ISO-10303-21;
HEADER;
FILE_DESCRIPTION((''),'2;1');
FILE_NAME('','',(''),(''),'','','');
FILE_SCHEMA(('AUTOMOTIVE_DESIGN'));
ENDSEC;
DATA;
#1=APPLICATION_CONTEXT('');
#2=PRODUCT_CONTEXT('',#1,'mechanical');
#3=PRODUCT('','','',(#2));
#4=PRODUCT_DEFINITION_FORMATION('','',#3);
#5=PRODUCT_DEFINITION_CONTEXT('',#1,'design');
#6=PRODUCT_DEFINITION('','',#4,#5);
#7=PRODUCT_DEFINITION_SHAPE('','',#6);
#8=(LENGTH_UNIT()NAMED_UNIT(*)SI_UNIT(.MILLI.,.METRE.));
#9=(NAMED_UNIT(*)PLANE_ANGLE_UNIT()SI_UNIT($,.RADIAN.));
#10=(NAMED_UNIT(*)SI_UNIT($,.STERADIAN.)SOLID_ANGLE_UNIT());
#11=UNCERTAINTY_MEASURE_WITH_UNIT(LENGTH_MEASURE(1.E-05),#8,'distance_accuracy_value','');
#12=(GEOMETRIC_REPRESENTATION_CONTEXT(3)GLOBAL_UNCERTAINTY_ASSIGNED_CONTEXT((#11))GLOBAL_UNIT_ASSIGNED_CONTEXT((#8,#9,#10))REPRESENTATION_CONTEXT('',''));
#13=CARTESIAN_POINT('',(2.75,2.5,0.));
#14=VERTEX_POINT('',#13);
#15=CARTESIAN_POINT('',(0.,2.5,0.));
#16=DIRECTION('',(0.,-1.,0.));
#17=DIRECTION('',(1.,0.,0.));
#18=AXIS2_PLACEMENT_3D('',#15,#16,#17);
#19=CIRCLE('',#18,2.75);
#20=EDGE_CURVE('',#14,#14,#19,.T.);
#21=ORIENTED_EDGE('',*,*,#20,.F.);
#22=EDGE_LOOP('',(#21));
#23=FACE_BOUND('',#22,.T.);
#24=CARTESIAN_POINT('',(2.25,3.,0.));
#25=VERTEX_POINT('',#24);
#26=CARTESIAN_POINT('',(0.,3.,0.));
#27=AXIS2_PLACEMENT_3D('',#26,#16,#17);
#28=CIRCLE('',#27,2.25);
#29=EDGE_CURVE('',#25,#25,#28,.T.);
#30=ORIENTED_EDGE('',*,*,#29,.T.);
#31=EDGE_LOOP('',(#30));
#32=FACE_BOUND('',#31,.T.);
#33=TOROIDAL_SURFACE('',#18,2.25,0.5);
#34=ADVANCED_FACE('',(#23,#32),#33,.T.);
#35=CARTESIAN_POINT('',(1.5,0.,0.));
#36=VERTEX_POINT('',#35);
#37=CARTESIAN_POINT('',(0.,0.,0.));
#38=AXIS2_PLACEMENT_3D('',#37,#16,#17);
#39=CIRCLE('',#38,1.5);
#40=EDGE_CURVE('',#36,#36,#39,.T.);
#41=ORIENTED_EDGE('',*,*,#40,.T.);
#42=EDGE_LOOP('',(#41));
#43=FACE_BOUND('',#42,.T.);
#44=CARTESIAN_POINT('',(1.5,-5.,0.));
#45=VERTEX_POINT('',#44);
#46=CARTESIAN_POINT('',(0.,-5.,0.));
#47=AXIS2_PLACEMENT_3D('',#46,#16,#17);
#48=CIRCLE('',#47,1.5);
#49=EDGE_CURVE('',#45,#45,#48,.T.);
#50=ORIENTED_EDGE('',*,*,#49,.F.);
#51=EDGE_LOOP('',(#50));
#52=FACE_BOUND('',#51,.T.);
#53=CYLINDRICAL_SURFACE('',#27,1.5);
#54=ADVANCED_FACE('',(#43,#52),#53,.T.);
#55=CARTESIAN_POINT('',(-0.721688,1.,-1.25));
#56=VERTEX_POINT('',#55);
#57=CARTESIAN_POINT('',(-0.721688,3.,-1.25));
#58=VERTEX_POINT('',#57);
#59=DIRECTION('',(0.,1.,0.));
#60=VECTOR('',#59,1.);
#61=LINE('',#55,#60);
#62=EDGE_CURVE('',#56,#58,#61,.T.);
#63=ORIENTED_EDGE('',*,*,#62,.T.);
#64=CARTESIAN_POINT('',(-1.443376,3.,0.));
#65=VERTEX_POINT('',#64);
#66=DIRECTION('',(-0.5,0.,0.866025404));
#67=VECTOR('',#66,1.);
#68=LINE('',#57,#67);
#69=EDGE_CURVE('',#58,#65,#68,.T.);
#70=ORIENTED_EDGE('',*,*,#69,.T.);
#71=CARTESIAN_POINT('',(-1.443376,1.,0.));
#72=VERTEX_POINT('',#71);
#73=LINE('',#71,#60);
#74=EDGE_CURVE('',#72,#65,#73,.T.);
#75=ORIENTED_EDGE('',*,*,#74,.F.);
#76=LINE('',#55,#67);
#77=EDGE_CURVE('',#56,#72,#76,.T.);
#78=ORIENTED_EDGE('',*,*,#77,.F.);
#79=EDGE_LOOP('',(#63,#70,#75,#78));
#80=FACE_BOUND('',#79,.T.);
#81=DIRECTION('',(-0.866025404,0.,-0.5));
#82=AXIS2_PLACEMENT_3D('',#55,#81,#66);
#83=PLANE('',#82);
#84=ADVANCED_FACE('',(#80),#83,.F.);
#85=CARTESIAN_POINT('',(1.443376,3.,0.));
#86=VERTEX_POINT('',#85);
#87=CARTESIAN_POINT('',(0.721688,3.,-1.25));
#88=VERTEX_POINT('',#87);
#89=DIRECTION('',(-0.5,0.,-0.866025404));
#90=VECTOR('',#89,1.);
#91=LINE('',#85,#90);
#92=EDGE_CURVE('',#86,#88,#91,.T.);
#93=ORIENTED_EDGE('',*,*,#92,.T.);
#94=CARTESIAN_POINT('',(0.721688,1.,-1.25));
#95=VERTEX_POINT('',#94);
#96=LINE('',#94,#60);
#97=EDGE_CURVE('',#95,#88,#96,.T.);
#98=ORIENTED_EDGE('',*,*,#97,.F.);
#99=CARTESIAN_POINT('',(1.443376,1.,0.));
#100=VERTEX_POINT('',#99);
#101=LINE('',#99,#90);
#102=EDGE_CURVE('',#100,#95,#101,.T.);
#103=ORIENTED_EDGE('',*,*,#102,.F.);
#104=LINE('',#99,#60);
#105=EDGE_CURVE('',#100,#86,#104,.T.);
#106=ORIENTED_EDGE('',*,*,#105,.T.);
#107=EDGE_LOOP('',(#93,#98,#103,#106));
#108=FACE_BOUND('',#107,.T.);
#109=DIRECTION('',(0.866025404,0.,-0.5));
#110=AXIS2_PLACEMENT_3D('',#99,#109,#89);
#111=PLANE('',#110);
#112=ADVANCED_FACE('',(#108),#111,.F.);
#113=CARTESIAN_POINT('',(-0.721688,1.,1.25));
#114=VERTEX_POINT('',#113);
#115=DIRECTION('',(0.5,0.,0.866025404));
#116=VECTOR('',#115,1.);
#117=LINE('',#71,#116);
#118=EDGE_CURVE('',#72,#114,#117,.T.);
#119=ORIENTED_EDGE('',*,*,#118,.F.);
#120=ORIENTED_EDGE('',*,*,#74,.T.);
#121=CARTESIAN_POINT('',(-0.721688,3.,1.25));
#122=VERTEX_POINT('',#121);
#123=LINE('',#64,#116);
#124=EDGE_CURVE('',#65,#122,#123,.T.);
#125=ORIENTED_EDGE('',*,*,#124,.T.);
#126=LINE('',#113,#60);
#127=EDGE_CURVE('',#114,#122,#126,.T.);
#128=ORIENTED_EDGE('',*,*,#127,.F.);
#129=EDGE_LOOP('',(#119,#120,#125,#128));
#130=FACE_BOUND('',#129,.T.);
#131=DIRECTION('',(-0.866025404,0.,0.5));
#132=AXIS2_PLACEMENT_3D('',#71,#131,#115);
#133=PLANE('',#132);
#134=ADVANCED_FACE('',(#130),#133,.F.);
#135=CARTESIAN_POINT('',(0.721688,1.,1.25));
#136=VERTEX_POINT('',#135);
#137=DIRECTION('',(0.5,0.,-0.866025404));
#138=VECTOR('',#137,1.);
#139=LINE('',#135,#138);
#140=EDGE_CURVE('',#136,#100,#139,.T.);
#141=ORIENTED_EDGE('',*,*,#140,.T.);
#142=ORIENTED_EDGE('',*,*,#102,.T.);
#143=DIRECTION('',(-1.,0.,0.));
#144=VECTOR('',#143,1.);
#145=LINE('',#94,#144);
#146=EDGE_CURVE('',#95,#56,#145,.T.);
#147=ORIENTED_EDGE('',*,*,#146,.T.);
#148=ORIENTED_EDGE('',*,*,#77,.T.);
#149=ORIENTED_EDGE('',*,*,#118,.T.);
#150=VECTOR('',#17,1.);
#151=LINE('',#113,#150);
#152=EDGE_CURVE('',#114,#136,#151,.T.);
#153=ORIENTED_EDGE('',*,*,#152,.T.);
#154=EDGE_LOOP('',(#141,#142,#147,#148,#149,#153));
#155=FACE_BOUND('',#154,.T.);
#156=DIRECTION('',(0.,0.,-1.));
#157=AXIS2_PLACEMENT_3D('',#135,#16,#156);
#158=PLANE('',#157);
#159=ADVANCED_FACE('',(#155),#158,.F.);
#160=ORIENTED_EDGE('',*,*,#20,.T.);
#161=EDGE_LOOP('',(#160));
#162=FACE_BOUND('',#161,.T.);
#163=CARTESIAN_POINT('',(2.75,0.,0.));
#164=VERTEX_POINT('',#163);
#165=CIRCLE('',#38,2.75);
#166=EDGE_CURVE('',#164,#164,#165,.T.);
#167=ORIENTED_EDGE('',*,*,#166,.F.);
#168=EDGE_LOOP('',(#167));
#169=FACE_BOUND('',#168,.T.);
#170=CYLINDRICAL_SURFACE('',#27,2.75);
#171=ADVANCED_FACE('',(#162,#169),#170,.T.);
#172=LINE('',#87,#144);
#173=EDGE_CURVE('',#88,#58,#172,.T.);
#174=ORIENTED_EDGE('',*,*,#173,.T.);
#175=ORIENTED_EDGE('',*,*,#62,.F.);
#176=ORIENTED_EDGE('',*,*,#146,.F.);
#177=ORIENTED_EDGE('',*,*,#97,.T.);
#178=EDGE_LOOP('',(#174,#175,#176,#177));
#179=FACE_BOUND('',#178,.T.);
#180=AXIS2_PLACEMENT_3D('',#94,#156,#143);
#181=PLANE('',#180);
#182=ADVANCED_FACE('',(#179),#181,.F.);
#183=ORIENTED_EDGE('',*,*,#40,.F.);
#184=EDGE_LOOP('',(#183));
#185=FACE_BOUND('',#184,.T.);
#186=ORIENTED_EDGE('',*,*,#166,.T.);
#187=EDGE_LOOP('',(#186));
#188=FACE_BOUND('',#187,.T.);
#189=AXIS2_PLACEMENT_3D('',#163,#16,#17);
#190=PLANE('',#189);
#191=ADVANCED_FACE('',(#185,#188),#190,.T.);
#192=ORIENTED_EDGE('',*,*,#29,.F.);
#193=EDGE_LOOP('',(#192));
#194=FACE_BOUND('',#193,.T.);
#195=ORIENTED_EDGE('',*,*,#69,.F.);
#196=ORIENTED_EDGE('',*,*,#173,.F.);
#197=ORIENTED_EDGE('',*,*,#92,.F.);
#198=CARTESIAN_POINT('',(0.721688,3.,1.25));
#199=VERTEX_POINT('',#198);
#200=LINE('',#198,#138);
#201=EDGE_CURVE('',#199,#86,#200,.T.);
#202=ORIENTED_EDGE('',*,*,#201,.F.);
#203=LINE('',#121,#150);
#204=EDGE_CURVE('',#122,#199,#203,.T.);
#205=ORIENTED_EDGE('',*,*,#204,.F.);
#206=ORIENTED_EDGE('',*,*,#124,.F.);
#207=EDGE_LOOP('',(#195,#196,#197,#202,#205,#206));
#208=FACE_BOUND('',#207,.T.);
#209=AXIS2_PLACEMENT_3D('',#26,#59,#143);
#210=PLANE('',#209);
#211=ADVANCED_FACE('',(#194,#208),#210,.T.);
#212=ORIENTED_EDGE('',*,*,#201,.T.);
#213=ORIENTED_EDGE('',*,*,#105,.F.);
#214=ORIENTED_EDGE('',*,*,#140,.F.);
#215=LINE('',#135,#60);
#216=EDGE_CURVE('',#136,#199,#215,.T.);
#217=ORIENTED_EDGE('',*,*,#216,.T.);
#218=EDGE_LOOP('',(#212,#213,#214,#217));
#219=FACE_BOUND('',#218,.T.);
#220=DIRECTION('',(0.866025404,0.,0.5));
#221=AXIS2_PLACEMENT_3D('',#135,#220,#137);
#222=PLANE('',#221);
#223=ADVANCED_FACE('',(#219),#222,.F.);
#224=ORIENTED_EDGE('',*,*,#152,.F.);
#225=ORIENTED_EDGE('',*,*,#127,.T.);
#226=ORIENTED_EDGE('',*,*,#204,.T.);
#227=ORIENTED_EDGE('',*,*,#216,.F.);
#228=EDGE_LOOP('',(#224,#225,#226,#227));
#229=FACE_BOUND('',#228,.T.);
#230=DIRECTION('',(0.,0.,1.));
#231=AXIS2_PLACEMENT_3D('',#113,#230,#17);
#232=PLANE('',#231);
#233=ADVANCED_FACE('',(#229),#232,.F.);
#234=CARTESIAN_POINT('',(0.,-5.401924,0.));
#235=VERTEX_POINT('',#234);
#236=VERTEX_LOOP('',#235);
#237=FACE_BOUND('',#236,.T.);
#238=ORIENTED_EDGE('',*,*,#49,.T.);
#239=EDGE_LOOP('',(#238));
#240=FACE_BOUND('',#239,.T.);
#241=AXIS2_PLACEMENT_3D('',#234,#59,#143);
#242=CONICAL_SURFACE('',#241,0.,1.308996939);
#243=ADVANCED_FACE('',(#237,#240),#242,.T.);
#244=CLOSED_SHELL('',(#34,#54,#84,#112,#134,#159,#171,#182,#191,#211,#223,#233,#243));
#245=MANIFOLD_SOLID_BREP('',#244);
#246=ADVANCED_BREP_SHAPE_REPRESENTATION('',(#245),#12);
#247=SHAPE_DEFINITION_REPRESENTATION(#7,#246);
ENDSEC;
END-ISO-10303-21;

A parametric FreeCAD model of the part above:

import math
import FreeCAD as App
import Part
import Sketcher
from FreeCAD import Vector
Q = App.Units.Quantity


def add_polygon(sketch, points):
    """Adds a closed chain of lines whose ends are joined by coincident constraints."""
    first, n = sketch.GeometryCount, len(points)
    for a, b in zip(points, points[1:] + points[:1]):
        sketch.addGeometry(Part.LineSegment(App.Vector(*a, 0), App.Vector(*b, 0)), False)
    for i in range(n):
        sketch.addConstraint(Sketcher.Constraint("Coincident", first + i, 2, first + (i + 1) % n, 1))

doc = App.newDocument("Part")
body = doc.addObject("PartDesign::Body", "Body")

# Sketch on XY plane
sketch1 = body.newObject("Sketcher::SketchObject", "Sketch")
sketch1.AttachmentSupport = (doc.getObject("XY_Plane"), [""])
sketch1.MapMode = "FlatFace"
sketch1.addGeometry(Part.LineSegment(Vector(0, 3, 0), Vector(0, -5.4, 0)), False)
sketch1.addGeometry(Part.LineSegment(Vector(0, -5.4, 0), Vector(1.5, -5, 0)), False)
sketch1.addGeometry(Part.LineSegment(Vector(1.5, -5, 0), Vector(1.5, 0, 0)), False)
sketch1.addGeometry(Part.LineSegment(Vector(1.5, 0, 0), Vector(2.75, 0, 0)), False)
sketch1.addGeometry(Part.LineSegment(Vector(2.75, 0, 0), Vector(2.75, 2.5, 0)), False)
sketch1.addGeometry(Part.ArcOfCircle(Part.Circle(Vector(2.25, 2.5, 0), Vector(0, 0, 1), 0.5), math.radians(0), math.radians(90)), False)
sketch1.addGeometry(Part.LineSegment(Vector(2.25, 3, 0), Vector(0, 3, 0)), False)
sketch1.addConstraint(Sketcher.Constraint("Coincident", 0, 2, 1, 1))
sketch1.addConstraint(Sketcher.Constraint("Coincident", 1, 2, 2, 1))
sketch1.addConstraint(Sketcher.Constraint("Coincident", 2, 2, 3, 1))
sketch1.addConstraint(Sketcher.Constraint("Coincident", 3, 2, 4, 1))
sketch1.addConstraint(Sketcher.Constraint("Tangent", 4, 2, 5, 1))
sketch1.addConstraint(Sketcher.Constraint("Tangent", 5, 2, 6, 1))
sketch1.addConstraint(Sketcher.Constraint("Coincident", 6, 2, 0, 1))
sketch1.addConstraint(Sketcher.Constraint("Vertical", 0))
sketch1.addConstraint(Sketcher.Constraint("Vertical", 2))
sketch1.addConstraint(Sketcher.Constraint("Horizontal", 3))
sketch1.addConstraint(Sketcher.Constraint("Vertical", 4))
sketch1.addConstraint(Sketcher.Constraint("Horizontal", 6))
sketch1.addConstraint(Sketcher.Constraint("PointOnObject", 0, 2, -2))
sketch1.addConstraint(Sketcher.Constraint("PointOnObject", 2, 2, -1))
sketch1.addConstraint(Sketcher.Constraint("Radius", 5, Q("0.5 mm")))
sketch1.addConstraint(Sketcher.Constraint("DistanceY", 2, 1, 2, 2, Q("5 mm")))
sketch1.addConstraint(Sketcher.Constraint("Angle", 1, Q("15 deg")))
sketch1.addConstraint(Sketcher.Constraint("DistanceY", 4, 1, 4, 2, Q("2.5 mm")))
sketch1.addConstraint(Sketcher.Constraint("DistanceX", 3, 1, 3, 2, Q("1.25 mm")))
sketch1.addConstraint(Sketcher.Constraint("DistanceX", 6, 2, 6, 1, Q("2.25 mm")))
revolution = body.newObject("PartDesign::Revolution", "Revolution")
revolution.Profile = sketch1
revolution.ReferenceAxis = (sketch1, ["V_Axis"])
revolution.Angle = 360

# Sketch on XZ plane
sketch2 = body.newObject("Sketcher::SketchObject", "Sketch001")
sketch2.AttachmentSupport = (doc.getObject("XZ_Plane"), [""])
sketch2.MapMode = "FlatFace"
sketch2.AttachmentOffset = App.Placement(Vector(0, 0, -3), App.Rotation())
add_polygon(sketch2, [(1.4, 0), (0.7, -1.2), (-0.7, -1.2), (-1.4, 0), (-0.7, 1.2), (0.7, 1.2)])  # lines 0-5
sketch2.addConstraint(Sketcher.Constraint("Horizontal", 1))
sketch2.addConstraint(Sketcher.Constraint("Horizontal", 4))
sketch2.addConstraint(Sketcher.Constraint("Symmetric", 0, 2, 3, 2, -1, 1))
sketch2.addConstraint(Sketcher.Constraint("Symmetric", 2, 2, 5, 2, -1, 1))
sketch2.addConstraint(Sketcher.Constraint("PointOnObject", 2, 2, -1))
sketch2.addConstraint(Sketcher.Constraint("Parallel", 2, 5))
sketch2.addConstraint(Sketcher.Constraint("Vertical", 1, 2, 3, 2))
sketch2.addConstraint(Sketcher.Constraint("Angle", 0, Q("-120 deg")))
sketch2.addConstraint(Sketcher.Constraint("DistanceY", 1, 2, 3, 2, Q("2.5 mm")))
sketch2.addConstraint(Sketcher.Constraint("DistanceX", 1, 2, 1, 1, Q("1.443376 mm")))
pocket1 = body.newObject("PartDesign::Pocket", "Pocket")
pocket1.Profile = sketch2
pocket1.Length = 2
pocket1.Reversed = True

doc.recompute()
